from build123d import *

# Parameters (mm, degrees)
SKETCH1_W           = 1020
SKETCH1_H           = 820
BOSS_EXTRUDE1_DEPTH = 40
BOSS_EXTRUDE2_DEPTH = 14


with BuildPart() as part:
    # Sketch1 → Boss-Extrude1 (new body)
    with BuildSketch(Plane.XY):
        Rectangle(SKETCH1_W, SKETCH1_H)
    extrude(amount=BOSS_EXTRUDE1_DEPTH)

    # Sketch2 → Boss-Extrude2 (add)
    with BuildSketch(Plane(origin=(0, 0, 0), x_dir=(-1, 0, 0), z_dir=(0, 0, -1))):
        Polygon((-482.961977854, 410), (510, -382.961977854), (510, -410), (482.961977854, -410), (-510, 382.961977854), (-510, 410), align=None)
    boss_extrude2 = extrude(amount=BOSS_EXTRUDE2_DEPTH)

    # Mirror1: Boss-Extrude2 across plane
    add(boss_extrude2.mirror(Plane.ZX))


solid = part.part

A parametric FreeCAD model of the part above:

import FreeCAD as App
import Part
import Sketcher
from FreeCAD import Vector
Q = App.Units.Quantity


def add_polygon(sketch, points):
    """Adds a closed chain of lines whose ends are joined by coincident constraints."""
    first, n = sketch.GeometryCount, len(points)
    for a, b in zip(points, points[1:] + points[:1]):
        sketch.addGeometry(Part.LineSegment(App.Vector(*a, 0), App.Vector(*b, 0)), False)
    for i in range(n):
        sketch.addConstraint(Sketcher.Constraint("Coincident", first + i, 2, first + (i + 1) % n, 1))

doc = App.newDocument("Part")
body = doc.addObject("PartDesign::Body", "Body")

sketch1 = body.newObject("Sketcher::SketchObject", "Sketch")
sketch1.AttachmentSupport = (doc.getObject("XY_Plane"), [""])
sketch1.MapMode = "FlatFace"
add_polygon(sketch1, [(-510, 410), (-510, -410), (510, -410), (510, 410)])
sketch1.addConstraint([
    Sketcher.Constraint("Vertical", 0),
    Sketcher.Constraint("Horizontal", 1),
    Sketcher.Constraint("Vertical", 2),
    Sketcher.Constraint("Horizontal", 3),
    Sketcher.Constraint("Symmetric", 0, 2, 2, 2, -1, 1),
    Sketcher.Constraint("DistanceX", 1, 1, 1, 2, Q("1020 mm")),
    Sketcher.Constraint("DistanceY", 0, 2, 0, 1, Q("820 mm")),
])
pad1 = body.newObject("PartDesign::Pad", "Pad")
pad1.Profile = sketch1
pad1.Length = 40

sketch2 = body.newObject("Sketcher::SketchObject", "Sketch001")
sketch2.AttachmentSupport = (doc.getObject("XY_Plane"), [""])
sketch2.MapMode = "FlatFace"
add_polygon(sketch2, [(-510, -383), (483, 410), (510, 410), (510, 383), (-483, -410), (-510, -410)])
sketch2.addConstraint([
    Sketcher.Constraint("Horizontal", 1),
    Sketcher.Constraint("Vertical", 2),
    Sketcher.Constraint("Horizontal", 4),
    Sketcher.Constraint("Vertical", 5),
    Sketcher.Constraint("Symmetric", 0, 2, 3, 2, -1, 1),
    Sketcher.Constraint("Symmetric", 2, 2, 5, 2, -1, 1),
    Sketcher.Constraint("Equal", 4, 2),
    Sketcher.Constraint("DistanceY", -1, 1, 0, 2, Q("410 mm")),
    Sketcher.Constraint("DistanceX", -1, 1, 1, 2, Q("510 mm")),
    Sketcher.Constraint("DistanceX", 1, 1, 1, 2, Q("27.038022 mm")),
])
pad2 = body.newObject("PartDesign::Pad", "Pad001")
pad2.Profile = sketch2
pad2.Length = 14
pad2.Reversed = True
doc.recompute()

mirrored = body.newObject("PartDesign::Mirrored", "Mirrored")
mirrored.Originals = [pad2]
mirrored.MirrorPlane = (doc.getObject("XZ_Plane"), [""])
body.Tip = mirrored

doc.recompute()
